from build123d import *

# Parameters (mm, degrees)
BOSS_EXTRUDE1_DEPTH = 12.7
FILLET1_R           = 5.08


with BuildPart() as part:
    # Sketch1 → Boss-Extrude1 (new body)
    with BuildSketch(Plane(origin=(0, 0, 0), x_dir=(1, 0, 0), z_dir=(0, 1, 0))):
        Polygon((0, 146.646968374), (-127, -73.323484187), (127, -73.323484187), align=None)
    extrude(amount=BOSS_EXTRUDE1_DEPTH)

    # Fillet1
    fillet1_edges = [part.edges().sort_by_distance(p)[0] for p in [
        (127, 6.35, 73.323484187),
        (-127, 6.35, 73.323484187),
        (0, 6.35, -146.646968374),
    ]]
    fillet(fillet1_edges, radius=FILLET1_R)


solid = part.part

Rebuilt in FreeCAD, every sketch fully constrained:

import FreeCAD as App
import Part
import Sketcher

V = App.Vector
Q = App.Units.Quantity


def edges_at(feature, points):
    """Names of the edges that pass closest to the given points."""
    edges = feature.Shape.Edges
    near = lambda p: min(range(len(edges)), key=lambda i: edges[i].distToShape(Part.Vertex(*p))[0])
    return sorted({f"Edge{near(p) + 1}" for p in points})

doc = App.newDocument("Part")
body = doc.addObject("PartDesign::Body", "Body")

# Sketch on XZ plane
sketch1 = body.newObject("Sketcher::SketchObject", "Sketch")
sketch1.AttachmentSupport = (doc.getObject("XZ_Plane"), [""])
sketch1.MapMode = "FlatFace"
sketch1.addGeometry([
    Part.LineSegment(V(0, -147, 0), V(-127, 73, 0)),
    Part.LineSegment(V(-127, 73, 0), V(127, 73, 0)),
    Part.LineSegment(V(127, 73, 0), V(0, -147, 0)),
], False)
sketch1.addConstraint([
    Sketcher.Constraint("Coincident", 0, 2, 1, 1),
    Sketcher.Constraint("Coincident", 1, 2, 2, 1),
    Sketcher.Constraint("Coincident", 2, 2, 0, 1),
    Sketcher.Constraint("Horizontal", 1),
    Sketcher.Constraint("PointOnObject", 2, 2, -2),
    Sketcher.Constraint("Equal", 0, 2),
    Sketcher.Constraint("DistanceX", 1, 1, 1, 2, Q("10 in")),
    Sketcher.Constraint("Distance", 0, Q("10 in")),
    Sketcher.Constraint("DistanceY", 2, 2, -1, 1, Q("146.646968 mm")),
])
pad1 = body.newObject("PartDesign::Pad", "Pad")
pad1.Profile = sketch1
pad1.Length = Q("0.5 in")
pad1.Reversed = True
doc.recompute()

fillet = body.newObject("PartDesign::Fillet", "Fillet")
fillet.Base = (pad1, edges_at(pad1, [(127, 6.35, 73.323), (-127, 6.35, 73.323), (0, 6.35, -146.647)]))
fillet.Radius = Q("0.2 in")

doc.recompute()
